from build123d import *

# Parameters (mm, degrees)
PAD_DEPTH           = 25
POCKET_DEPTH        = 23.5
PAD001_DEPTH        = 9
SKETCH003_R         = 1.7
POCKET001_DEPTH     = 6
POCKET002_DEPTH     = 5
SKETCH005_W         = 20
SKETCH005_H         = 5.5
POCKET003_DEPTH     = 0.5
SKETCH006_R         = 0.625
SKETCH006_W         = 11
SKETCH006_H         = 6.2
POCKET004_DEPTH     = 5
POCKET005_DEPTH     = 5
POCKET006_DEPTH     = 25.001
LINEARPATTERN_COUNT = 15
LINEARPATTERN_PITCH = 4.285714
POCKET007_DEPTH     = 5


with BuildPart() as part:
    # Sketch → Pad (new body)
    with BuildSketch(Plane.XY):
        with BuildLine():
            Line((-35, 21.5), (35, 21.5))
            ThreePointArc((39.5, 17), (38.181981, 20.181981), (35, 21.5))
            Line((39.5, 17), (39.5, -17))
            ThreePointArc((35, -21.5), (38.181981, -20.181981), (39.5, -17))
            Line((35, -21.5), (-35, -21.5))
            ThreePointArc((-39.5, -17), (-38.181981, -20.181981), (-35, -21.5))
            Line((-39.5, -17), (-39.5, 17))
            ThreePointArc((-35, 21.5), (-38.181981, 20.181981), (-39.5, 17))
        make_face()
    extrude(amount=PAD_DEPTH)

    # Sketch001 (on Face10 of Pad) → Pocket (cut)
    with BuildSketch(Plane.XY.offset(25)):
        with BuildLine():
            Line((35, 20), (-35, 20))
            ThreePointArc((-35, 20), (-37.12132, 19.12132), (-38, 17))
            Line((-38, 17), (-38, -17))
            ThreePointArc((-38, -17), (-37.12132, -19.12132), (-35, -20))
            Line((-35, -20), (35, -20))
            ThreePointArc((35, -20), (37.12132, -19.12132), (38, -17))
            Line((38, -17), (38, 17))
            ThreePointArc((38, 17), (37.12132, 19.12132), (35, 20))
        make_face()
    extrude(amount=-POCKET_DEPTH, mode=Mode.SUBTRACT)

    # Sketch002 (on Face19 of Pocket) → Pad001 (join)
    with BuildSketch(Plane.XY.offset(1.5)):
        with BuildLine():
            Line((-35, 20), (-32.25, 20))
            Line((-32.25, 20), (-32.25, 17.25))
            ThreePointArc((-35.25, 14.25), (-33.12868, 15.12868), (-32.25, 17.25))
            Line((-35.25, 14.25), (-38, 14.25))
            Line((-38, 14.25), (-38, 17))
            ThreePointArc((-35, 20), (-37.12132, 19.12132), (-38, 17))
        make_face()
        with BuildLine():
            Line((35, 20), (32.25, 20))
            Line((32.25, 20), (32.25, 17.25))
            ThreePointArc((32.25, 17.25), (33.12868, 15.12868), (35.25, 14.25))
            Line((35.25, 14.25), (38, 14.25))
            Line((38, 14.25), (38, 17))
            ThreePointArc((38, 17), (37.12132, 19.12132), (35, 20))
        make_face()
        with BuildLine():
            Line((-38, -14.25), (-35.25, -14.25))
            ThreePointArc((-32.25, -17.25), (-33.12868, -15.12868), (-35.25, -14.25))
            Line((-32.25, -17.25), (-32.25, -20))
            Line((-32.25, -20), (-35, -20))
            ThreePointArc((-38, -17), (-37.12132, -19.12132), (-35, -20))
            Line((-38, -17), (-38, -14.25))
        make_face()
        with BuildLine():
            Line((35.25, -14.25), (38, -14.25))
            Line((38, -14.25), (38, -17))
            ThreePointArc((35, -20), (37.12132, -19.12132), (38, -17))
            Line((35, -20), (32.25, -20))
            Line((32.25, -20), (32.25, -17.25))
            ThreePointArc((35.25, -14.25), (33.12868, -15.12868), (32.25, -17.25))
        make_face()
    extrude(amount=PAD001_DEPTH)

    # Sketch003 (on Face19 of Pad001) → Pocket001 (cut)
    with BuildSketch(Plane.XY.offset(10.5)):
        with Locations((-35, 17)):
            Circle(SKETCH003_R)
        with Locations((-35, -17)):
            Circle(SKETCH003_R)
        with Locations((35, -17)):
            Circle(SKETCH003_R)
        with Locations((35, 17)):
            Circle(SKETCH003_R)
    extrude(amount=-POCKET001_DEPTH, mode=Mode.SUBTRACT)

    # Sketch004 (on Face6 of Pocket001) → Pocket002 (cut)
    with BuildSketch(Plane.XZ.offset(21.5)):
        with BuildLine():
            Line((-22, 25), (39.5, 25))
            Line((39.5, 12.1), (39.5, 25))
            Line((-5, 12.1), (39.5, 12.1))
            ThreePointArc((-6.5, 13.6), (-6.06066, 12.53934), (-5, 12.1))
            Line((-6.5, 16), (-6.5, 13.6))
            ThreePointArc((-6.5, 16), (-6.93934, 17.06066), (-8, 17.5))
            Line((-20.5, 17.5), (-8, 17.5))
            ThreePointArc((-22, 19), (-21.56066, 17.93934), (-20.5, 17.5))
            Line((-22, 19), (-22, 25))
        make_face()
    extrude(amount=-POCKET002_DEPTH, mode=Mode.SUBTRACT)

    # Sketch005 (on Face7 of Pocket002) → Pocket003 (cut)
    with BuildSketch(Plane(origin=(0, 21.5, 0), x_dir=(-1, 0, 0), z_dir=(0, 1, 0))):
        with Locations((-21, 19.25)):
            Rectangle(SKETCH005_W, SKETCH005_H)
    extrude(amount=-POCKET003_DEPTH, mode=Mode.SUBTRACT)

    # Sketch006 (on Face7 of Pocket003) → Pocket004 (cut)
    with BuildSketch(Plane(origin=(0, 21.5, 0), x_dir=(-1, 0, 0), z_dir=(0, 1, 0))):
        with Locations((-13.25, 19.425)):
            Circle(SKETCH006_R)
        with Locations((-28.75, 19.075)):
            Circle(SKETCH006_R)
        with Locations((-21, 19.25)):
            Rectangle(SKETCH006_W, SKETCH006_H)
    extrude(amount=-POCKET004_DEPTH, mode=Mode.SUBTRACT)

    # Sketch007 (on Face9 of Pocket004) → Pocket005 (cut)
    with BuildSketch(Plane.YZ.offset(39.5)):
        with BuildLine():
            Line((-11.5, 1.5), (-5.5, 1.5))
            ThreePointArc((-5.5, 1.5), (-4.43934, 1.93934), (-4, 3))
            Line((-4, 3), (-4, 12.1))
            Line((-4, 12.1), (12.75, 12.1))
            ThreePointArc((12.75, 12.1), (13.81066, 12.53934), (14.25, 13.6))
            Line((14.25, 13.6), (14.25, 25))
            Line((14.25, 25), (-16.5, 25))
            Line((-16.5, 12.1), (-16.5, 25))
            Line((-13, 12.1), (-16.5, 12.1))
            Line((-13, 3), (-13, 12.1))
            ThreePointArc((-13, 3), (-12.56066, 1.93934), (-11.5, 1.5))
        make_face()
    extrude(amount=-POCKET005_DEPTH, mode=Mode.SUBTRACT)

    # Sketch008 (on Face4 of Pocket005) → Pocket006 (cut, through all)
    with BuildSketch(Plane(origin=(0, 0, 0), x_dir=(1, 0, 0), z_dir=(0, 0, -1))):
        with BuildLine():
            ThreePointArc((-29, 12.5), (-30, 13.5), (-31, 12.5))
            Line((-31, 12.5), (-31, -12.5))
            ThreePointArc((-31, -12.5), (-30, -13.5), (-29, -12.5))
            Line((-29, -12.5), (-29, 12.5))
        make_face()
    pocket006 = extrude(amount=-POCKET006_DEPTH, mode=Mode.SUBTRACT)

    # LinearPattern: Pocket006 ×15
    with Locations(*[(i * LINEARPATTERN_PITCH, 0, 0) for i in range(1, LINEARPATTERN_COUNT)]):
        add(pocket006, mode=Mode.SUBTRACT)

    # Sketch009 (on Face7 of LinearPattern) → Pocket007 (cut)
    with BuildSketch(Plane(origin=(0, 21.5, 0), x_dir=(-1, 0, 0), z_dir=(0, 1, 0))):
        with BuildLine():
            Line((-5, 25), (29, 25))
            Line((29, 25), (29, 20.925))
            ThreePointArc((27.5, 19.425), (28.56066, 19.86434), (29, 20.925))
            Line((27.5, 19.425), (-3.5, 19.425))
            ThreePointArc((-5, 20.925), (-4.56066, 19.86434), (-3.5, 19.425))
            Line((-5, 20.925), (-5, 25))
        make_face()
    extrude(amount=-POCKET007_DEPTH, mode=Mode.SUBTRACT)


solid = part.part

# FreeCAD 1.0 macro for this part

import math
import FreeCAD as App
import Part
import Sketcher

V = App.Vector


def add_polygon(sketch, points):
    """Adds a closed chain of lines whose ends are joined by coincident constraints."""
    first, n = sketch.GeometryCount, len(points)
    for a, b in zip(points, points[1:] + points[:1]):
        sketch.addGeometry(Part.LineSegment(App.Vector(*a, 0), App.Vector(*b, 0)), False)
    for i in range(n):
        sketch.addConstraint(Sketcher.Constraint("Coincident", first + i, 2, first + (i + 1) % n, 1))

doc = App.newDocument("Part")
body = doc.addObject("PartDesign::Body", "Body")

sketch1 = doc.addObject("Sketcher::SketchObject", "Sketch")
body.addObject(sketch1)
sketch1.AttachmentSupport = (doc.XY_Plane, [""])
sketch1.MapMode = "FlatFace"
sketch1.addGeometry(Part.LineSegment(V(35, 21.5, 0), V(-35, 21.5, 0)), False)
sketch1.addGeometry(Part.ArcOfCircle(Part.Circle(V(-35, 17, 0), V(0, 0, 1), 4.5), math.radians(90), math.radians(180)), False)
sketch1.addGeometry(Part.LineSegment(V(-39.5, 17, 0), V(-39.5, -17, 0)), False)
sketch1.addGeometry(Part.ArcOfCircle(Part.Circle(V(-35, -17, 0), V(0, 0, 1), 4.5), math.radians(180), math.radians(270)), False)
sketch1.addGeometry(Part.LineSegment(V(-35, -21.5, 0), V(35, -21.5, 0)), False)
sketch1.addGeometry(Part.ArcOfCircle(Part.Circle(V(35, -17, 0), V(0, 0, 1), 4.5), math.radians(-90), math.radians(0)), False)
sketch1.addGeometry(Part.LineSegment(V(39.5, -17, 0), V(39.5, 17, 0)), False)
sketch1.addGeometry(Part.ArcOfCircle(Part.Circle(V(35, 17, 0), V(0, 0, 1), 4.5), math.radians(0), math.radians(90)), False)
sketch1.addConstraint(Sketcher.Constraint("Tangent", 0, 2, 1, 1))
sketch1.addConstraint(Sketcher.Constraint("Tangent", 1, 2, 2, 1))
sketch1.addConstraint(Sketcher.Constraint("Tangent", 2, 2, 3, 1))
sketch1.addConstraint(Sketcher.Constraint("Tangent", 3, 2, 4, 1))
sketch1.addConstraint(Sketcher.Constraint("Tangent", 4, 2, 5, 1))
sketch1.addConstraint(Sketcher.Constraint("Tangent", 5, 2, 6, 1))
sketch1.addConstraint(Sketcher.Constraint("Tangent", 6, 2, 7, 1))
sketch1.addConstraint(Sketcher.Constraint("Tangent", 7, 2, 0, 1))
sketch1.addConstraint(Sketcher.Constraint("Horizontal", 0))
sketch1.addConstraint(Sketcher.Constraint("Vertical", 2))
sketch1.addConstraint(Sketcher.Constraint("Horizontal", 4))
sketch1.addConstraint(Sketcher.Constraint("Vertical", 6))
sketch1.addConstraint(Sketcher.Constraint("Equal", 1, 3))
sketch1.addConstraint(Sketcher.Constraint("Equal", 3, 5))
sketch1.addConstraint(Sketcher.Constraint("Equal", 5, 7))
sketch1.addConstraint(Sketcher.Constraint("Symmetric", 1, 3, 5, 3, -1, 1))
sketch1.addConstraint(Sketcher.Constraint("Radius", 1, 4.499998))
sketch1.addConstraint(Sketcher.Constraint("DistanceX", 0, 2, 0, 1, 70.0))
sketch1.addConstraint(Sketcher.Constraint("DistanceY", 2, 2, 2, 1, 34.0))
pad1 = doc.addObject("PartDesign::Pad", "Pad")
body.addObject(pad1)
pad1.Profile = sketch1
pad1.Length = 25

sketch2 = doc.addObject("Sketcher::SketchObject", "Sketch001")
body.addObject(sketch2)
sketch2.AttachmentSupport = (doc.XY_Plane, [""])
sketch2.MapMode = "FlatFace"
sketch2.AttachmentOffset = App.Placement(V(0, 0, 25), App.Rotation())
sketch2.addGeometry(Part.LineSegment(V(35, 20, 0), V(-35, 20, 0)), False)
sketch2.addGeometry(Part.ArcOfCircle(Part.Circle(V(-35, 17, 0), V(0, 0, 1), 3), math.radians(90), math.radians(180)), False)
sketch2.addGeometry(Part.LineSegment(V(-38, 17, 0), V(-38, -17, 0)), False)
sketch2.addGeometry(Part.ArcOfCircle(Part.Circle(V(-35, -17, 0), V(0, 0, 1), 3), math.radians(-180), math.radians(-90)), False)
sketch2.addGeometry(Part.LineSegment(V(-35, -20, 0), V(35, -20, 0)), False)
sketch2.addGeometry(Part.ArcOfCircle(Part.Circle(V(35, -17, 0), V(0, 0, 1), 3), math.radians(-90), math.radians(0)), False)
sketch2.addGeometry(Part.LineSegment(V(38, -17, 0), V(38, 17, 0)), False)
sketch2.addGeometry(Part.ArcOfCircle(Part.Circle(V(35, 17, 0), V(0, 0, 1), 3), math.radians(0), math.radians(90)), False)
sketch2.addConstraint(Sketcher.Constraint("Tangent", 0, 2, 1, 1))
sketch2.addConstraint(Sketcher.Constraint("Tangent", 1, 2, 2, 1))
sketch2.addConstraint(Sketcher.Constraint("Tangent", 2, 2, 3, 1))
sketch2.addConstraint(Sketcher.Constraint("Tangent", 3, 2, 4, 1))
sketch2.addConstraint(Sketcher.Constraint("Tangent", 4, 2, 5, 1))
sketch2.addConstraint(Sketcher.Constraint("Tangent", 5, 2, 6, 1))
sketch2.addConstraint(Sketcher.Constraint("Tangent", 6, 2, 7, 1))
sketch2.addConstraint(Sketcher.Constraint("Tangent", 7, 2, 0, 1))
sketch2.addConstraint(Sketcher.Constraint("Horizontal", 0))
sketch2.addConstraint(Sketcher.Constraint("Vertical", 2))
sketch2.addConstraint(Sketcher.Constraint("Horizontal", 4))
sketch2.addConstraint(Sketcher.Constraint("Vertical", 6))
sketch2.addConstraint(Sketcher.Constraint("Equal", 1, 3))
sketch2.addConstraint(Sketcher.Constraint("Equal", 3, 5))
sketch2.addConstraint(Sketcher.Constraint("Equal", 5, 7))
sketch2.addConstraint(Sketcher.Constraint("Symmetric", 1, 3, 5, 3, -1, 1))
sketch2.addConstraint(Sketcher.Constraint("Radius", 1, 3.000001))
sketch2.addConstraint(Sketcher.Constraint("DistanceX", 0, 2, 0, 1, 70.0))
sketch2.addConstraint(Sketcher.Constraint("DistanceY", 2, 2, 2, 1, 34.0))
pocket1 = doc.addObject("PartDesign::Pocket", "Pocket")
body.addObject(pocket1)
pocket1.Profile = sketch2
pocket1.Length = 23.5

sketch3 = doc.addObject("Sketcher::SketchObject", "Sketch002")
body.addObject(sketch3)
sketch3.AttachmentSupport = (doc.XY_Plane, [""])
sketch3.MapMode = "FlatFace"
sketch3.AttachmentOffset = App.Placement(V(0, 0, 1.5), App.Rotation())
sketch3.addGeometry(Part.LineSegment(V(-32.2, 20, 0), V(-35, 20, 0)), False)
sketch3.addGeometry(Part.ArcOfCircle(Part.Circle(V(-35, 17, 0), V(0, 0, 1), 3), math.radians(90), math.radians(180)), False)
sketch3.addGeometry(Part.LineSegment(V(-38, 17, 0), V(-38, 14.2, 0)), False)
sketch3.addGeometry(Part.LineSegment(V(-38, 14.2, 0), V(-35.2, 14.2, 0)), False)
sketch3.addGeometry(Part.ArcOfCircle(Part.Circle(V(-35.3, 17.3, 0), V(0, 0, 1), 3), math.radians(-90), math.radians(0)), False)
sketch3.addGeometry(Part.LineSegment(V(-32.2, 17.2, 0), V(-32.2, 20, 0)), False)
sketch3.addGeometry(Part.LineSegment(V(35, 20, 0), V(32.2, 20, 0)), False)
sketch3.addGeometry(Part.LineSegment(V(32.2, 20, 0), V(32.2, 17.2, 0)), False)
sketch3.addGeometry(Part.ArcOfCircle(Part.Circle(V(35.3, 17.3, 0), V(0, 0, 1), 3), math.radians(-180), math.radians(-90)), False)
sketch3.addGeometry(Part.LineSegment(V(35.2, 14.2, 0), V(38, 14.2, 0)), False)
sketch3.addGeometry(Part.LineSegment(V(38, 14.2, 0), V(38, 17, 0)), False)
sketch3.addGeometry(Part.ArcOfCircle(Part.Circle(V(35, 17, 0), V(0, 0, 1), 3), math.radians(0), math.radians(90)), False)
sketch3.addGeometry(Part.LineSegment(V(-35.2, -14.2, 0), V(-38, -14.2, 0)), False)
sketch3.addGeometry(Part.LineSegment(V(-38, -14.2, 0), V(-38, -17, 0)), False)
sketch3.addGeometry(Part.ArcOfCircle(Part.Circle(V(-35, -17, 0), V(0, 0, 1), 3), math.radians(-180), math.radians(-90)), False)
sketch3.addGeometry(Part.LineSegment(V(-35, -20, 0), V(-32.2, -20, 0)), False)
sketch3.addGeometry(Part.LineSegment(V(-32.2, -20, 0), V(-32.2, -17.2, 0)), False)
sketch3.addGeometry(Part.ArcOfCircle(Part.Circle(V(-35.3, -17.3, 0), V(0, 0, 1), 3), math.radians(0), math.radians(90)), False)
sketch3.addGeometry(Part.LineSegment(V(38, -14.2, 0), V(35.2, -14.2, 0)), False)
sketch3.addGeometry(Part.ArcOfCircle(Part.Circle(V(35.3, -17.3, 0), V(0, 0, 1), 3), math.radians(90), math.radians(180)), False)
sketch3.addGeometry(Part.LineSegment(V(32.2, -17.2, 0), V(32.2, -20, 0)), False)
sketch3.addGeometry(Part.LineSegment(V(32.2, -20, 0), V(35, -20, 0)), False)
sketch3.addGeometry(Part.ArcOfCircle(Part.Circle(V(35, -17, 0), V(0, 0, 1), 3), math.radians(-90), math.radians(0)), False)
sketch3.addGeometry(Part.LineSegment(V(38, -17, 0), V(38, -14.2, 0)), False)
sketch3.addConstraint(Sketcher.Constraint("Tangent", 0, 2, 1, 1))
sketch3.addConstraint(Sketcher.Constraint("Tangent", 1, 2, 2, 1))
sketch3.addConstraint(Sketcher.Constraint("Coincident", 2, 2, 3, 1))
sketch3.addConstraint(Sketcher.Constraint("Tangent", 3, 2, 4, 1))
sketch3.addConstraint(Sketcher.Constraint("Tangent", 4, 2, 5, 1))
sketch3.addConstraint(Sketcher.Constraint("Coincident", 5, 2, 0, 1))
sketch3.addConstraint(Sketcher.Constraint("Coincident", 6, 2, 7, 1))
sketch3.addConstraint(Sketcher.Constraint("Tangent", 7, 2, 8, 1))
sketch3.addConstraint(Sketcher.Constraint("Tangent", 8, 2, 9, 1))
sketch3.addConstraint(Sketcher.Constraint("Coincident", 9, 2, 10, 1))
sketch3.addConstraint(Sketcher.Constraint("Tangent", 10, 2, 11, 1))
sketch3.addConstraint(Sketcher.Constraint("Tangent", 11, 2, 6, 1))
sketch3.addConstraint(Sketcher.Constraint("Coincident", 12, 2, 13, 1))
sketch3.addConstraint(Sketcher.Constraint("Tangent", 13, 2, 14, 1))
sketch3.addConstraint(Sketcher.Constraint("Tangent", 14, 2, 15, 1))
sketch3.addConstraint(Sketcher.Constraint("Coincident", 15, 2, 16, 1))
sketch3.addConstraint(Sketcher.Constraint("Tangent", 16, 2, 17, 1))
sketch3.addConstraint(Sketcher.Constraint("Tangent", 17, 2, 12, 1))
sketch3.addConstraint(Sketcher.Constraint("Tangent", 18, 2, 19, 1))
sketch3.addConstraint(Sketcher.Constraint("Tangent", 19, 2, 20, 1))
sketch3.addConstraint(Sketcher.Constraint("Coincident", 20, 2, 21, 1))
sketch3.addConstraint(Sketcher.Constraint("Tangent", 21, 2, 22, 1))
sketch3.addConstraint(Sketcher.Constraint("Tangent", 22, 2, 23, 1))
sketch3.addConstraint(Sketcher.Constraint("Coincident", 23, 2, 18, 1))
sketch3.addConstraint(Sketcher.Constraint("Horizontal", 0))
sketch3.addConstraint(Sketcher.Constraint("Vertical", 2))
sketch3.addConstraint(Sketcher.Constraint("Horizontal", 3))
sketch3.addConstraint(Sketcher.Constraint("Vertical", 5))
sketch3.addConstraint(Sketcher.Constraint("Horizontal", 6))
sketch3.addConstraint(Sketcher.Constraint("Vertical", 7))
sketch3.addConstraint(Sketcher.Constraint("Horizontal", 9))
sketch3.addConstraint(Sketcher.Constraint("Vertical", 10))
sketch3.addConstraint(Sketcher.Constraint("Horizontal", 12))
sketch3.addConstraint(Sketcher.Constraint("Vertical", 13))
sketch3.addConstraint(Sketcher.Constraint("Horizontal", 15))
sketch3.addConstraint(Sketcher.Constraint("Vertical", 16))
sketch3.addConstraint(Sketcher.Constraint("Horizontal", 18))
sketch3.addConstraint(Sketcher.Constraint("Vertical", 20))
sketch3.addConstraint(Sketcher.Constraint("Horizontal", 21))
sketch3.addConstraint(Sketcher.Constraint("Vertical", 23))
sketch3.addConstraint(Sketcher.Constraint("Equal", 1, 4))
sketch3.addConstraint(Sketcher.Constraint("Equal", 4, 8))
sketch3.addConstraint(Sketcher.Constraint("Equal", 8, 11))
sketch3.addConstraint(Sketcher.Constraint("Equal", 11, 14))
sketch3.addConstraint(Sketcher.Constraint("Equal", 14, 17))
sketch3.addConstraint(Sketcher.Constraint("Equal", 17, 19))
sketch3.addConstraint(Sketcher.Constraint("Equal", 19, 22))
sketch3.addConstraint(Sketcher.Constraint("Symmetric", 11, 3, 14, 3, -1, 1))
sketch3.addConstraint(Sketcher.Constraint("Symmetric", 8, 3, 17, 3, -1, 1))
sketch3.addConstraint(Sketcher.Constraint("Symmetric", 4, 3, 19, 3, -1, 1))
sketch3.addConstraint(Sketcher.Constraint("Symmetric", 1, 3, 22, 3, -1, 1))
sketch3.addConstraint(Sketcher.Constraint("Symmetric", 4, 3, 8, 3, -2))
sketch3.addConstraint(Sketcher.Constraint("Symmetric", 1, 3, 11, 3, -2))
sketch3.addConstraint(Sketcher.Constraint("Equal", 21, 2))
sketch3.addConstraint(Sketcher.Constraint("Radius", 1, 3.000001))
sketch3.addConstraint(Sketcher.Constraint("DistanceX", 1, 3, -1, 1, 34.999999))
sketch3.addConstraint(Sketcher.Constraint("DistanceY", -1, 1, 1, 3, 16.999999))
sketch3.addConstraint(Sketcher.Constraint("DistanceX", 0, 2, 0, 1, 2.75))
pad2 = doc.addObject("PartDesign::Pad", "Pad001")
body.addObject(pad2)
pad2.Profile = sketch3
pad2.Length = 9

sketch4 = doc.addObject("Sketcher::SketchObject", "Sketch003")
body.addObject(sketch4)
sketch4.AttachmentSupport = (doc.XY_Plane, [""])
sketch4.MapMode = "FlatFace"
sketch4.AttachmentOffset = App.Placement(V(0, 0, 10.5), App.Rotation())
sketch4.addGeometry(Part.Circle(V(-35, 17, 0), V(0, 0, 1), 1.7), False)
sketch4.addGeometry(Part.Circle(V(-35, -17, 0), V(0, 0, 1), 1.7), False)
sketch4.addGeometry(Part.Circle(V(35, -17, 0), V(0, 0, 1), 1.7), False)
sketch4.addGeometry(Part.Circle(V(35, 17, 0), V(0, 0, 1), 1.7), False)
sketch4.addConstraint(Sketcher.Constraint("Equal", 0, 1))
sketch4.addConstraint(Sketcher.Constraint("Equal", 1, 2))
sketch4.addConstraint(Sketcher.Constraint("Equal", 2, 3))
sketch4.addConstraint(Sketcher.Constraint("Symmetric", 0, 3, 2, 3, -1, 1))
sketch4.addConstraint(Sketcher.Constraint("Symmetric", 1, 3, 3, 3, -1, 1))
sketch4.addConstraint(Sketcher.Constraint("Symmetric", 1, 3, 2, 3, -2))
sketch4.addConstraint(Sketcher.Constraint("Diameter", 0, 3.4))
sketch4.addConstraint(Sketcher.Constraint("DistanceX", 0, 3, -1, 1, 35.0))
sketch4.addConstraint(Sketcher.Constraint("DistanceY", -1, 1, 0, 3, 17.0))
pocket2 = doc.addObject("PartDesign::Pocket", "Pocket001")
body.addObject(pocket2)
pocket2.Profile = sketch4
pocket2.Length = 6

sketch5 = doc.addObject("Sketcher::SketchObject", "Sketch004")
body.addObject(sketch5)
sketch5.AttachmentSupport = (doc.XZ_Plane, [""])
sketch5.MapMode = "FlatFace"
sketch5.AttachmentOffset = App.Placement(V(0, 0, 21.5), App.Rotation())
sketch5.addGeometry(Part.LineSegment(V(39.5, 25, 0), V(-22, 25, 0)), False)
sketch5.addGeometry(Part.LineSegment(V(-22, 25, 0), V(-22, 19, 0)), False)
sketch5.addGeometry(Part.ArcOfCircle(Part.Circle(V(-20.5, 19, 0), V(0, 0, 1), 1.5), math.radians(-180), math.radians(-90)), False)
sketch5.addGeometry(Part.LineSegment(V(-20.5, 17.5, 0), V(-8, 17.5, 0)), False)
sketch5.addGeometry(Part.ArcOfCircle(Part.Circle(V(-8, 16, 0), V(0, 0, 1), 1.5), math.radians(0), math.radians(90)), False)
sketch5.addGeometry(Part.LineSegment(V(-6.5, 16, 0), V(-6.5, 13.6, 0)), False)
sketch5.addGeometry(Part.ArcOfCircle(Part.Circle(V(-5, 13.6, 0), V(0, 0, 1), 1.5), math.radians(-180), math.radians(-90)), False)
sketch5.addGeometry(Part.LineSegment(V(-5, 12.1, 0), V(39.5, 12.1, 0)), False)
sketch5.addGeometry(Part.LineSegment(V(39.5, 12.1, 0), V(39.5, 25, 0)), False)
sketch5.addConstraint(Sketcher.Constraint("Coincident", 0, 2, 1, 1))
sketch5.addConstraint(Sketcher.Constraint("Tangent", 1, 2, 2, 1))
sketch5.addConstraint(Sketcher.Constraint("Tangent", 2, 2, 3, 1))
sketch5.addConstraint(Sketcher.Constraint("Tangent", 3, 2, 4, 2))
sketch5.addConstraint(Sketcher.Constraint("Tangent", 4, 1, 5, 1))
sketch5.addConstraint(Sketcher.Constraint("Tangent", 5, 2, 6, 1))
sketch5.addConstraint(Sketcher.Constraint("Tangent", 6, 2, 7, 1))
sketch5.addConstraint(Sketcher.Constraint("Coincident", 7, 2, 8, 1))
sketch5.addConstraint(Sketcher.Constraint("Coincident", 8, 2, 0, 1))
sketch5.addConstraint(Sketcher.Constraint("Horizontal", 0))
sketch5.addConstraint(Sketcher.Constraint("Vertical", 1))
sketch5.addConstraint(Sketcher.Constraint("Horizontal", 3))
sketch5.addConstraint(Sketcher.Constraint("Vertical", 5))
sketch5.addConstraint(Sketcher.Constraint("Horizontal", 7))
sketch5.addConstraint(Sketcher.Constraint("Vertical", 8))
sketch5.addConstraint(Sketcher.Constraint("Equal", 2, 4))
sketch5.addConstraint(Sketcher.Constraint("Equal", 4, 6))
sketch5.addConstraint(Sketcher.Constraint("Radius", 2, 1.500001))
sketch5.addConstraint(Sketcher.Constraint("DistanceY", 1, 2, 1, 1, 6.0))
sketch5.addConstraint(Sketcher.Constraint("DistanceX", 0, 2, 0, 1, 61.5))
sketch5.addConstraint(Sketcher.Constraint("DistanceX", 3, 1, 3, 2, 12.5))
sketch5.addConstraint(Sketcher.Constraint("DistanceY", 5, 2, 5, 1, 2.4))
sketch5.addConstraint(Sketcher.Constraint("DistanceY", -1, 1, 2, 3, 19.000001))
sketch5.addConstraint(Sketcher.Constraint("DistanceX", 4, 3, -1, 1, 8.000001))
pocket3 = doc.addObject("PartDesign::Pocket", "Pocket002")
body.addObject(pocket3)
pocket3.Profile = sketch5
pocket3.Length = 5

sketch6 = doc.addObject("Sketcher::SketchObject", "Sketch005")
body.addObject(sketch6)
sketch6.AttachmentSupport = (doc.XZ_Plane, [""])
sketch6.MapMode = "FlatFace"
sketch6.AttachmentOffset = App.Placement(V(0, 0, -21.5), App.Rotation())
add_polygon(sketch6, [(31, 22), (31, 16), (11, 16), (11, 22)])
sketch6.addConstraint(Sketcher.Constraint("Vertical", 0))
sketch6.addConstraint(Sketcher.Constraint("Horizontal", 1))
sketch6.addConstraint(Sketcher.Constraint("Vertical", 2))
sketch6.addConstraint(Sketcher.Constraint("Horizontal", 3))
sketch6.addConstraint(Sketcher.Constraint("DistanceX", 1, 2, 1, 1, 20.0))
sketch6.addConstraint(Sketcher.Constraint("DistanceY", 0, 2, 0, 1, 5.5))
sketch6.addConstraint(Sketcher.Constraint("DistanceX", -1, 1, 0, 2, 31.0))
sketch6.addConstraint(Sketcher.Constraint("DistanceY", -1, 1, 2, 2, 22.0))
pocket4 = doc.addObject("PartDesign::Pocket", "Pocket003")
body.addObject(pocket4)
pocket4.Profile = sketch6
pocket4.Length = 0.5
pocket4.Reversed = True

sketch7 = doc.addObject("Sketcher::SketchObject", "Sketch006")
body.addObject(sketch7)
sketch7.AttachmentSupport = (doc.XZ_Plane, [""])
sketch7.MapMode = "FlatFace"
sketch7.AttachmentOffset = App.Placement(V(0, 0, -21.5), App.Rotation())
sketch7.addGeometry(Part.Circle(V(13.2, 19.4, 0), V(0, 0, 1), 0.6), False)
sketch7.addGeometry(Part.Circle(V(28.8, 19.1, 0), V(0, 0, 1), 0.6), False)
add_polygon(sketch7, [(26.5, 22.4), (26.5, 16.1), (15.5, 16.1), (15.5, 22.4)])
sketch7.addConstraint(Sketcher.Constraint("Vertical", 2))
sketch7.addConstraint(Sketcher.Constraint("Horizontal", 3))
sketch7.addConstraint(Sketcher.Constraint("Vertical", 4))
sketch7.addConstraint(Sketcher.Constraint("Horizontal", 5))
sketch7.addConstraint(Sketcher.Constraint("Equal", 0, 1))
sketch7.addConstraint(Sketcher.Constraint("Diameter", 0, 1.25))
sketch7.addConstraint(Sketcher.Constraint("DistanceX", 3, 2, 3, 1, 11.0))
sketch7.addConstraint(Sketcher.Constraint("DistanceY", 2, 2, 2, 1, 6.2))
sketch7.addConstraint(Sketcher.Constraint("DistanceX", -1, 1, 2, 2, 26.5))
sketch7.addConstraint(Sketcher.Constraint("DistanceX", 0, 3, 1, 3, 15.5))
sketch7.addConstraint(Sketcher.Constraint("DistanceX", -1, 1, 0, 3, 13.25))
sketch7.addConstraint(Sketcher.Constraint("DistanceY", -1, 1, 2, 2, 16.15))
sketch7.addConstraint(Sketcher.Constraint("DistanceY", 1, 3, 0, 3, 0.35))
sketch7.addConstraint(Sketcher.Constraint("DistanceY", -1, 1, 0, 3, 19.425))
pocket5 = doc.addObject("PartDesign::Pocket", "Pocket004")
body.addObject(pocket5)
pocket5.Profile = sketch7
pocket5.Length = 5
pocket5.Reversed = True

sketch8 = doc.addObject("Sketcher::SketchObject", "Sketch007")
body.addObject(sketch8)
sketch8.AttachmentSupport = (doc.YZ_Plane, [""])
sketch8.MapMode = "FlatFace"
sketch8.AttachmentOffset = App.Placement(V(0, 0, 39.5), App.Rotation())
sketch8.addGeometry(Part.LineSegment(V(-11.5, 1.5, 0), V(-5.5, 1.5, 0)), False)
sketch8.addGeometry(Part.ArcOfCircle(Part.Circle(V(-5.5, 3, 0), V(0, 0, 1), 1.5), math.radians(-90), math.radians(0)), False)
sketch8.addGeometry(Part.LineSegment(V(-4, 3, 0), V(-4, 12.1, 0)), False)
sketch8.addGeometry(Part.LineSegment(V(-4, 12.1, 0), V(12.8, 12.1, 0)), False)
sketch8.addGeometry(Part.ArcOfCircle(Part.Circle(V(12.7, 13.6, 0), V(0, 0, 1), 1.5), math.radians(-90), math.radians(0)), False)
sketch8.addGeometry(Part.LineSegment(V(14.2, 13.6, 0), V(14.2, 25, 0)), False)
sketch8.addGeometry(Part.LineSegment(V(14.2, 25, 0), V(-16.5, 25, 0)), False)
sketch8.addGeometry(Part.LineSegment(V(-16.5, 25, 0), V(-16.5, 12.1, 0)), False)
sketch8.addGeometry(Part.LineSegment(V(-16.5, 12.1, 0), V(-13, 12.1, 0)), False)
sketch8.addGeometry(Part.LineSegment(V(-13, 12.1, 0), V(-13, 3, 0)), False)
sketch8.addGeometry(Part.ArcOfCircle(Part.Circle(V(-11.5, 3, 0), V(0, 0, 1), 1.5), math.radians(-180), math.radians(-90)), False)
sketch8.addConstraint(Sketcher.Constraint("Tangent", 0, 2, 1, 1))
sketch8.addConstraint(Sketcher.Constraint("Tangent", 1, 2, 2, 1))
sketch8.addConstraint(Sketcher.Constraint("Coincident", 2, 2, 3, 1))
sketch8.addConstraint(Sketcher.Constraint("Tangent", 3, 2, 4, 1))
sketch8.addConstraint(Sketcher.Constraint("Tangent", 4, 2, 5, 1))
sketch8.addConstraint(Sketcher.Constraint("Coincident", 5, 2, 6, 1))
sketch8.addConstraint(Sketcher.Constraint("Coincident", 6, 2, 7, 1))
sketch8.addConstraint(Sketcher.Constraint("Coincident", 7, 2, 8, 1))
sketch8.addConstraint(Sketcher.Constraint("Coincident", 8, 2, 9, 1))
sketch8.addConstraint(Sketcher.Constraint("Tangent", 9, 2, 10, 1))
sketch8.addConstraint(Sketcher.Constraint("Tangent", 10, 2, 0, 1))
sketch8.addConstraint(Sketcher.Constraint("Horizontal", 0))
sketch8.addConstraint(Sketcher.Constraint("Vertical", 2))
sketch8.addConstraint(Sketcher.Constraint("Horizontal", 3))
sketch8.addConstraint(Sketcher.Constraint("Vertical", 5))
sketch8.addConstraint(Sketcher.Constraint("Horizontal", 6))
sketch8.addConstraint(Sketcher.Constraint("Vertical", 7))
sketch8.addConstraint(Sketcher.Constraint("Horizontal", 8))
sketch8.addConstraint(Sketcher.Constraint("Vertical", 9))
sketch8.addConstraint(Sketcher.Constraint("Equal", 1, 4))
sketch8.addConstraint(Sketcher.Constraint("Equal", 4, 10))
sketch8.addConstraint(Sketcher.Constraint("Horizontal", 3, 2, 7, 2))
sketch8.addConstraint(Sketcher.Constraint("Radius", 1, 1.500001))
sketch8.addConstraint(Sketcher.Constraint("DistanceX", 0, 1, 0, 2, 6.0))
sketch8.addConstraint(Sketcher.Constraint("DistanceX", 8, 1, 8, 2, 3.5))
sketch8.addConstraint(Sketcher.Constraint("DistanceY", 2, 1, 2, 2, 9.1))
sketch8.addConstraint(Sketcher.Constraint("DistanceY", 5, 1, 5, 2, 11.4))
sketch8.addConstraint(Sketcher.Constraint("DistanceY", -1, 1, 1, 3, 3.000001))
sketch8.addConstraint(Sketcher.Constraint("DistanceX", 1, 2, -1, 1, 4.0))
sketch8.addConstraint(Sketcher.Constraint("DistanceX", 3, 1, 3, 2, 16.75))
pocket6 = doc.addObject("PartDesign::Pocket", "Pocket005")
body.addObject(pocket6)
pocket6.Profile = sketch8
pocket6.Length = 5

sketch9 = doc.addObject("Sketcher::SketchObject", "Sketch008")
body.addObject(sketch9)
sketch9.AttachmentSupport = (doc.XY_Plane, [""])
sketch9.MapMode = "FlatFace"
sketch9.addGeometry(Part.ArcOfCircle(Part.Circle(V(-30, -12.5, 0), V(0, 0, 1), 1), math.radians(180), math.radians(360)), False)
sketch9.addGeometry(Part.LineSegment(V(-31, -12.5, 0), V(-31, 12.5, 0)), False)
sketch9.addGeometry(Part.ArcOfCircle(Part.Circle(V(-30, 12.5, 0), V(0, 0, 1), 1), math.radians(0), math.radians(180)), False)
sketch9.addGeometry(Part.LineSegment(V(-29, 12.5, 0), V(-29, -12.5, 0)), False)
sketch9.addConstraint(Sketcher.Constraint("Tangent", 0, 1, 1, 1))
sketch9.addConstraint(Sketcher.Constraint("Tangent", 1, 2, 2, 2))
sketch9.addConstraint(Sketcher.Constraint("Tangent", 2, 1, 3, 1))
sketch9.addConstraint(Sketcher.Constraint("Tangent", 3, 2, 0, 2))
sketch9.addConstraint(Sketcher.Constraint("Vertical", 1))
sketch9.addConstraint(Sketcher.Constraint("Vertical", 3))
sketch9.addConstraint(Sketcher.Constraint("Radius", 0, 1.0))
sketch9.addConstraint(Sketcher.Constraint("DistanceY", 1, 1, 1, 2, 25.0))
sketch9.addConstraint(Sketcher.Constraint("DistanceX", 0, 3, -1, 1, 30.0))
sketch9.addConstraint(Sketcher.Constraint("DistanceY", 0, 3, -1, 1, 12.5))
pocket7 = doc.addObject("PartDesign::Pocket", "Pocket006")
body.addObject(pocket7)
pocket7.Profile = sketch9
pocket7.Type = "ThroughAll"
pocket7.Reversed = True
doc.recompute()

linearpattern = doc.addObject("PartDesign::LinearPattern", "LinearPattern")
body.addObject(linearpattern)
linearpattern.Originals = [pocket7]
linearpattern.Direction = (doc.X_Axis, [""])
linearpattern.Mode = "offset"
linearpattern.Offset = 4.285714
linearpattern.Occurrences = 15
body.Tip = linearpattern

sketch10 = doc.addObject("Sketcher::SketchObject", "Sketch009")
body.addObject(sketch10)
sketch10.AttachmentSupport = (doc.XZ_Plane, [""])
sketch10.MapMode = "FlatFace"
sketch10.AttachmentOffset = App.Placement(V(0, 0, -21.5), App.Rotation())
sketch10.addGeometry(Part.LineSegment(V(-29, 25, 0), V(5, 25, 0)), False)
sketch10.addGeometry(Part.LineSegment(V(5, 25, 0), V(5, 20.9, 0)), False)
sketch10.addGeometry(Part.ArcOfCircle(Part.Circle(V(3.5, 20.9, 0), V(0, 0, 1), 1.5), math.radians(-90), math.radians(0)), False)
sketch10.addGeometry(Part.LineSegment(V(3.5, 19.4, 0), V(-27.5, 19.4, 0)), False)
sketch10.addGeometry(Part.ArcOfCircle(Part.Circle(V(-27.5, 20.9, 0), V(0, 0, 1), 1.5), math.radians(-180), math.radians(-90)), False)
sketch10.addGeometry(Part.LineSegment(V(-29, 20.9, 0), V(-29, 25, 0)), False)
sketch10.addConstraint(Sketcher.Constraint("Coincident", 0, 2, 1, 1))
sketch10.addConstraint(Sketcher.Constraint("Tangent", 1, 2, 2, 2))
sketch10.addConstraint(Sketcher.Constraint("Tangent", 2, 1, 3, 1))
sketch10.addConstraint(Sketcher.Constraint("Tangent", 3, 2, 4, 2))
sketch10.addConstraint(Sketcher.Constraint("Tangent", 4, 1, 5, 1))
sketch10.addConstraint(Sketcher.Constraint("Coincident", 5, 2, 0, 1))
sketch10.addConstraint(Sketcher.Constraint("Horizontal", 0))
sketch10.addConstraint(Sketcher.Constraint("Vertical", 1))
sketch10.addConstraint(Sketcher.Constraint("Horizontal", 3))
sketch10.addConstraint(Sketcher.Constraint("Vertical", 5))
sketch10.addConstraint(Sketcher.Constraint("Equal", 2, 4))
sketch10.addConstraint(Sketcher.Constraint("Radius", 2, 1.500001))
sketch10.addConstraint(Sketcher.Constraint("DistanceX", 0, 1, 0, 2, 34.0))
sketch10.addConstraint(Sketcher.Constraint("DistanceX", -1, 1, 0, 2, 5.0))
sketch10.addConstraint(Sketcher.Constraint("DistanceY", -1, 1, 0, 2, 25.0))
sketch10.addConstraint(Sketcher.Constraint("DistanceY", 1, 2, 1, 1, 4.075))
pocket8 = doc.addObject("PartDesign::Pocket", "Pocket007")
body.addObject(pocket8)
pocket8.Profile = sketch10
pocket8.Length = 5
pocket8.Reversed = True

doc.recompute()
